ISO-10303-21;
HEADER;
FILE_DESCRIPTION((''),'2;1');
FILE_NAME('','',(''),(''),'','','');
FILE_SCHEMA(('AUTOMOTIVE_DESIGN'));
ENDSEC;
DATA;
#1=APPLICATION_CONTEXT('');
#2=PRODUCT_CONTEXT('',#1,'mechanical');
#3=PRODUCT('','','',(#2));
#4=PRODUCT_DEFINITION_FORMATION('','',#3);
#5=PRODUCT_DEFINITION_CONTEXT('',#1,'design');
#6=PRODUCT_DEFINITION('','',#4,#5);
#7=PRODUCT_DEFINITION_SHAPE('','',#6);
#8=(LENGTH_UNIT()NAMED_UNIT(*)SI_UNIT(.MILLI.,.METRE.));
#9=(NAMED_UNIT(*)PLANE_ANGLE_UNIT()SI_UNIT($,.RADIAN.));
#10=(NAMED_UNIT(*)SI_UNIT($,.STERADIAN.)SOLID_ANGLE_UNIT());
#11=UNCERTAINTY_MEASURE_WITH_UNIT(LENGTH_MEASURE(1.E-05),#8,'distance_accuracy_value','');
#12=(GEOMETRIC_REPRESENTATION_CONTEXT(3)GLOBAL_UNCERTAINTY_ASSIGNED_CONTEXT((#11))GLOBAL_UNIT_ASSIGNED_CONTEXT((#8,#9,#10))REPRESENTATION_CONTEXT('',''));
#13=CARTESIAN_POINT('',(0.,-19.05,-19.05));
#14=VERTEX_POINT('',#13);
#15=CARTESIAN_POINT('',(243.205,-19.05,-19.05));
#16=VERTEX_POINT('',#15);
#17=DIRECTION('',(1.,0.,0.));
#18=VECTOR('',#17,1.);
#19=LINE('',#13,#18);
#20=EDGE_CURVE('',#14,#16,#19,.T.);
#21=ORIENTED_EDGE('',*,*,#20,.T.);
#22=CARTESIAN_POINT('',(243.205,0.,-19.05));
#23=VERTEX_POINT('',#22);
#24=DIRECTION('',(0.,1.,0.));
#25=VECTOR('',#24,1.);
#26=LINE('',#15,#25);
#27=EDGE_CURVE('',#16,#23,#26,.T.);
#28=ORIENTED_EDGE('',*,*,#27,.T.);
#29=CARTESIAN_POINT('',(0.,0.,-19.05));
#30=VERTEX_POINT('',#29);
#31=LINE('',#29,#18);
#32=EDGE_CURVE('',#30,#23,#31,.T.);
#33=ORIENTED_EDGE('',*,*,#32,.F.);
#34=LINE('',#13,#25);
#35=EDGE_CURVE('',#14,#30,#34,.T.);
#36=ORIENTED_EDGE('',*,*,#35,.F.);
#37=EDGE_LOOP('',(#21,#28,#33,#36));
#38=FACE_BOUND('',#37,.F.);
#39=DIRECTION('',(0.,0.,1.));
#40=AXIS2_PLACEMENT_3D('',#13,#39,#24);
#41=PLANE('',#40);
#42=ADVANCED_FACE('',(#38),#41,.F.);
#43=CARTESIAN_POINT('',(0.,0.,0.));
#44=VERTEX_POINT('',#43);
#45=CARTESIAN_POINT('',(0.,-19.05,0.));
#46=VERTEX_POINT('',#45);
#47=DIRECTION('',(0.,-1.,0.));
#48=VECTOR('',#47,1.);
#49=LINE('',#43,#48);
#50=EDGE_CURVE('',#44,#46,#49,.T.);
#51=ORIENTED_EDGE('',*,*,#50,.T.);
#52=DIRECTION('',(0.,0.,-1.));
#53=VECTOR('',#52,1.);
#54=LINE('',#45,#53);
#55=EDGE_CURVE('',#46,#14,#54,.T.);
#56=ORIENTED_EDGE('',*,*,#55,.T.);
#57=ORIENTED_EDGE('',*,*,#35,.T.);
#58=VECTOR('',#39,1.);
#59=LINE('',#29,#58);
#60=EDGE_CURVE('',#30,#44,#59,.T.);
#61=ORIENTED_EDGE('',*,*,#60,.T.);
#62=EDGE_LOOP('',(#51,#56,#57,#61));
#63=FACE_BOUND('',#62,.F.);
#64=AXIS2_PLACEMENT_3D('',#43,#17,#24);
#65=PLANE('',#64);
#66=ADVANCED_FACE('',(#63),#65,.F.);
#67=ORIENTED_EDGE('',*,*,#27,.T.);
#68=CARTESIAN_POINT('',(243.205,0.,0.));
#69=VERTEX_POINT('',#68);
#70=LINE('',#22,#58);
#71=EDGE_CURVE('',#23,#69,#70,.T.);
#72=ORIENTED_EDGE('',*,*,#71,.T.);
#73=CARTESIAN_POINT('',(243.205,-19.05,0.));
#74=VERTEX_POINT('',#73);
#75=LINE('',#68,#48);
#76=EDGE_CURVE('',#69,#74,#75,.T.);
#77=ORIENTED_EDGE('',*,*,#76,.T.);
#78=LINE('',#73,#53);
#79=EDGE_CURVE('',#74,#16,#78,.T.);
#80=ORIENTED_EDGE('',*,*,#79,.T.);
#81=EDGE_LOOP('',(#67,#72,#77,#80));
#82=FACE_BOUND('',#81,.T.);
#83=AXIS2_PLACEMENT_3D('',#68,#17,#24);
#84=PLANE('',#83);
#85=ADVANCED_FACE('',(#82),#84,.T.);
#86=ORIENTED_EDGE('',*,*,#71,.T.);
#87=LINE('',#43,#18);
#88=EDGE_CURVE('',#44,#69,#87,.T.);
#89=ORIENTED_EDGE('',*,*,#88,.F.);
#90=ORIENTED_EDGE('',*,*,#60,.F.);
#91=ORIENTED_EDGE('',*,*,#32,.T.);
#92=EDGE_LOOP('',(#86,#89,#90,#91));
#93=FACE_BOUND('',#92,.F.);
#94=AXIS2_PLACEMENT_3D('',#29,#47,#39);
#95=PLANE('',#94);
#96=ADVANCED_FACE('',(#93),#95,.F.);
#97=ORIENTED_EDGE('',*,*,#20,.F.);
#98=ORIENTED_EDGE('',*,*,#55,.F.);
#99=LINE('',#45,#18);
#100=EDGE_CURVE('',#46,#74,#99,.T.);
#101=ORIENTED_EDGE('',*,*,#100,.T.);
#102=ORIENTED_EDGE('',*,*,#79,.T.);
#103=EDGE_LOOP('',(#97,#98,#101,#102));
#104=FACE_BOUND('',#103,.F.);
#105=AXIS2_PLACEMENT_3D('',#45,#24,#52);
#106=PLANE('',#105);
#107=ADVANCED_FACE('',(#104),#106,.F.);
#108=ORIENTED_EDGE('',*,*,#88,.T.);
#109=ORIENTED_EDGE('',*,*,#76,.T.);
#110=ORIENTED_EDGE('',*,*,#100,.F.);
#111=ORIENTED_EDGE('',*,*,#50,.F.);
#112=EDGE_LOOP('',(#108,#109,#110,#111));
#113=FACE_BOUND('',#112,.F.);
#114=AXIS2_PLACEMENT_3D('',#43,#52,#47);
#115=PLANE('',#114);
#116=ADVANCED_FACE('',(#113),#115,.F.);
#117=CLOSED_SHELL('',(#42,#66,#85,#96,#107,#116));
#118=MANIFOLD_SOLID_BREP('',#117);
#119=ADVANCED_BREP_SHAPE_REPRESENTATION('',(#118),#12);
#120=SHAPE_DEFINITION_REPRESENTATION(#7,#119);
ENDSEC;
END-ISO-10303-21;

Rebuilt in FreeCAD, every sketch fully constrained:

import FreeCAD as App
import Part
import Sketcher

V = App.Vector
Q = App.Units.Quantity

doc = App.newDocument("Part")
body = doc.addObject("PartDesign::Body", "Body")

# Sketch on YZ plane
sketch1 = body.newObject("Sketcher::SketchObject", "Sketch")
sketch1.AttachmentSupport = (doc.getObject("YZ_Plane"), [""])
sketch1.MapMode = "FlatFace"
sketch1.addGeometry([
    Part.LineSegment(V(0, -19.05, 0), V(0, 0, 0)),
    Part.LineSegment(V(0, 0, 0), V(-19.05, 0, 0)),
    Part.LineSegment(V(-19.05, 0, 0), V(-19.05, -19.05, 0)),
    Part.LineSegment(V(-19.05, -19.05, 0), V(0, -19.05, 0)),
], False)
sketch1.addConstraint([
    Sketcher.Constraint("Coincident", 0, 2, 1, 1),
    Sketcher.Constraint("Coincident", 1, 2, 2, 1),
    Sketcher.Constraint("Coincident", 2, 2, 3, 1),
    Sketcher.Constraint("Coincident", 3, 2, 0, 1),
    Sketcher.Constraint("Vertical", 0),
    Sketcher.Constraint("Horizontal", 1),
    Sketcher.Constraint("Vertical", 2),
    Sketcher.Constraint("Horizontal", 3),
    Sketcher.Constraint("Coincident", 0, 2, -1, 1),
    Sketcher.Constraint("Equal", 3, 0),
    Sketcher.Constraint("DistanceX", 1, 2, 1, 1, Q("0.75 in")),
])
pad1 = body.newObject("PartDesign::Pad", "Pad")
pad1.Profile = sketch1
pad1.Length = Q("9.575 in")

doc.recompute()
